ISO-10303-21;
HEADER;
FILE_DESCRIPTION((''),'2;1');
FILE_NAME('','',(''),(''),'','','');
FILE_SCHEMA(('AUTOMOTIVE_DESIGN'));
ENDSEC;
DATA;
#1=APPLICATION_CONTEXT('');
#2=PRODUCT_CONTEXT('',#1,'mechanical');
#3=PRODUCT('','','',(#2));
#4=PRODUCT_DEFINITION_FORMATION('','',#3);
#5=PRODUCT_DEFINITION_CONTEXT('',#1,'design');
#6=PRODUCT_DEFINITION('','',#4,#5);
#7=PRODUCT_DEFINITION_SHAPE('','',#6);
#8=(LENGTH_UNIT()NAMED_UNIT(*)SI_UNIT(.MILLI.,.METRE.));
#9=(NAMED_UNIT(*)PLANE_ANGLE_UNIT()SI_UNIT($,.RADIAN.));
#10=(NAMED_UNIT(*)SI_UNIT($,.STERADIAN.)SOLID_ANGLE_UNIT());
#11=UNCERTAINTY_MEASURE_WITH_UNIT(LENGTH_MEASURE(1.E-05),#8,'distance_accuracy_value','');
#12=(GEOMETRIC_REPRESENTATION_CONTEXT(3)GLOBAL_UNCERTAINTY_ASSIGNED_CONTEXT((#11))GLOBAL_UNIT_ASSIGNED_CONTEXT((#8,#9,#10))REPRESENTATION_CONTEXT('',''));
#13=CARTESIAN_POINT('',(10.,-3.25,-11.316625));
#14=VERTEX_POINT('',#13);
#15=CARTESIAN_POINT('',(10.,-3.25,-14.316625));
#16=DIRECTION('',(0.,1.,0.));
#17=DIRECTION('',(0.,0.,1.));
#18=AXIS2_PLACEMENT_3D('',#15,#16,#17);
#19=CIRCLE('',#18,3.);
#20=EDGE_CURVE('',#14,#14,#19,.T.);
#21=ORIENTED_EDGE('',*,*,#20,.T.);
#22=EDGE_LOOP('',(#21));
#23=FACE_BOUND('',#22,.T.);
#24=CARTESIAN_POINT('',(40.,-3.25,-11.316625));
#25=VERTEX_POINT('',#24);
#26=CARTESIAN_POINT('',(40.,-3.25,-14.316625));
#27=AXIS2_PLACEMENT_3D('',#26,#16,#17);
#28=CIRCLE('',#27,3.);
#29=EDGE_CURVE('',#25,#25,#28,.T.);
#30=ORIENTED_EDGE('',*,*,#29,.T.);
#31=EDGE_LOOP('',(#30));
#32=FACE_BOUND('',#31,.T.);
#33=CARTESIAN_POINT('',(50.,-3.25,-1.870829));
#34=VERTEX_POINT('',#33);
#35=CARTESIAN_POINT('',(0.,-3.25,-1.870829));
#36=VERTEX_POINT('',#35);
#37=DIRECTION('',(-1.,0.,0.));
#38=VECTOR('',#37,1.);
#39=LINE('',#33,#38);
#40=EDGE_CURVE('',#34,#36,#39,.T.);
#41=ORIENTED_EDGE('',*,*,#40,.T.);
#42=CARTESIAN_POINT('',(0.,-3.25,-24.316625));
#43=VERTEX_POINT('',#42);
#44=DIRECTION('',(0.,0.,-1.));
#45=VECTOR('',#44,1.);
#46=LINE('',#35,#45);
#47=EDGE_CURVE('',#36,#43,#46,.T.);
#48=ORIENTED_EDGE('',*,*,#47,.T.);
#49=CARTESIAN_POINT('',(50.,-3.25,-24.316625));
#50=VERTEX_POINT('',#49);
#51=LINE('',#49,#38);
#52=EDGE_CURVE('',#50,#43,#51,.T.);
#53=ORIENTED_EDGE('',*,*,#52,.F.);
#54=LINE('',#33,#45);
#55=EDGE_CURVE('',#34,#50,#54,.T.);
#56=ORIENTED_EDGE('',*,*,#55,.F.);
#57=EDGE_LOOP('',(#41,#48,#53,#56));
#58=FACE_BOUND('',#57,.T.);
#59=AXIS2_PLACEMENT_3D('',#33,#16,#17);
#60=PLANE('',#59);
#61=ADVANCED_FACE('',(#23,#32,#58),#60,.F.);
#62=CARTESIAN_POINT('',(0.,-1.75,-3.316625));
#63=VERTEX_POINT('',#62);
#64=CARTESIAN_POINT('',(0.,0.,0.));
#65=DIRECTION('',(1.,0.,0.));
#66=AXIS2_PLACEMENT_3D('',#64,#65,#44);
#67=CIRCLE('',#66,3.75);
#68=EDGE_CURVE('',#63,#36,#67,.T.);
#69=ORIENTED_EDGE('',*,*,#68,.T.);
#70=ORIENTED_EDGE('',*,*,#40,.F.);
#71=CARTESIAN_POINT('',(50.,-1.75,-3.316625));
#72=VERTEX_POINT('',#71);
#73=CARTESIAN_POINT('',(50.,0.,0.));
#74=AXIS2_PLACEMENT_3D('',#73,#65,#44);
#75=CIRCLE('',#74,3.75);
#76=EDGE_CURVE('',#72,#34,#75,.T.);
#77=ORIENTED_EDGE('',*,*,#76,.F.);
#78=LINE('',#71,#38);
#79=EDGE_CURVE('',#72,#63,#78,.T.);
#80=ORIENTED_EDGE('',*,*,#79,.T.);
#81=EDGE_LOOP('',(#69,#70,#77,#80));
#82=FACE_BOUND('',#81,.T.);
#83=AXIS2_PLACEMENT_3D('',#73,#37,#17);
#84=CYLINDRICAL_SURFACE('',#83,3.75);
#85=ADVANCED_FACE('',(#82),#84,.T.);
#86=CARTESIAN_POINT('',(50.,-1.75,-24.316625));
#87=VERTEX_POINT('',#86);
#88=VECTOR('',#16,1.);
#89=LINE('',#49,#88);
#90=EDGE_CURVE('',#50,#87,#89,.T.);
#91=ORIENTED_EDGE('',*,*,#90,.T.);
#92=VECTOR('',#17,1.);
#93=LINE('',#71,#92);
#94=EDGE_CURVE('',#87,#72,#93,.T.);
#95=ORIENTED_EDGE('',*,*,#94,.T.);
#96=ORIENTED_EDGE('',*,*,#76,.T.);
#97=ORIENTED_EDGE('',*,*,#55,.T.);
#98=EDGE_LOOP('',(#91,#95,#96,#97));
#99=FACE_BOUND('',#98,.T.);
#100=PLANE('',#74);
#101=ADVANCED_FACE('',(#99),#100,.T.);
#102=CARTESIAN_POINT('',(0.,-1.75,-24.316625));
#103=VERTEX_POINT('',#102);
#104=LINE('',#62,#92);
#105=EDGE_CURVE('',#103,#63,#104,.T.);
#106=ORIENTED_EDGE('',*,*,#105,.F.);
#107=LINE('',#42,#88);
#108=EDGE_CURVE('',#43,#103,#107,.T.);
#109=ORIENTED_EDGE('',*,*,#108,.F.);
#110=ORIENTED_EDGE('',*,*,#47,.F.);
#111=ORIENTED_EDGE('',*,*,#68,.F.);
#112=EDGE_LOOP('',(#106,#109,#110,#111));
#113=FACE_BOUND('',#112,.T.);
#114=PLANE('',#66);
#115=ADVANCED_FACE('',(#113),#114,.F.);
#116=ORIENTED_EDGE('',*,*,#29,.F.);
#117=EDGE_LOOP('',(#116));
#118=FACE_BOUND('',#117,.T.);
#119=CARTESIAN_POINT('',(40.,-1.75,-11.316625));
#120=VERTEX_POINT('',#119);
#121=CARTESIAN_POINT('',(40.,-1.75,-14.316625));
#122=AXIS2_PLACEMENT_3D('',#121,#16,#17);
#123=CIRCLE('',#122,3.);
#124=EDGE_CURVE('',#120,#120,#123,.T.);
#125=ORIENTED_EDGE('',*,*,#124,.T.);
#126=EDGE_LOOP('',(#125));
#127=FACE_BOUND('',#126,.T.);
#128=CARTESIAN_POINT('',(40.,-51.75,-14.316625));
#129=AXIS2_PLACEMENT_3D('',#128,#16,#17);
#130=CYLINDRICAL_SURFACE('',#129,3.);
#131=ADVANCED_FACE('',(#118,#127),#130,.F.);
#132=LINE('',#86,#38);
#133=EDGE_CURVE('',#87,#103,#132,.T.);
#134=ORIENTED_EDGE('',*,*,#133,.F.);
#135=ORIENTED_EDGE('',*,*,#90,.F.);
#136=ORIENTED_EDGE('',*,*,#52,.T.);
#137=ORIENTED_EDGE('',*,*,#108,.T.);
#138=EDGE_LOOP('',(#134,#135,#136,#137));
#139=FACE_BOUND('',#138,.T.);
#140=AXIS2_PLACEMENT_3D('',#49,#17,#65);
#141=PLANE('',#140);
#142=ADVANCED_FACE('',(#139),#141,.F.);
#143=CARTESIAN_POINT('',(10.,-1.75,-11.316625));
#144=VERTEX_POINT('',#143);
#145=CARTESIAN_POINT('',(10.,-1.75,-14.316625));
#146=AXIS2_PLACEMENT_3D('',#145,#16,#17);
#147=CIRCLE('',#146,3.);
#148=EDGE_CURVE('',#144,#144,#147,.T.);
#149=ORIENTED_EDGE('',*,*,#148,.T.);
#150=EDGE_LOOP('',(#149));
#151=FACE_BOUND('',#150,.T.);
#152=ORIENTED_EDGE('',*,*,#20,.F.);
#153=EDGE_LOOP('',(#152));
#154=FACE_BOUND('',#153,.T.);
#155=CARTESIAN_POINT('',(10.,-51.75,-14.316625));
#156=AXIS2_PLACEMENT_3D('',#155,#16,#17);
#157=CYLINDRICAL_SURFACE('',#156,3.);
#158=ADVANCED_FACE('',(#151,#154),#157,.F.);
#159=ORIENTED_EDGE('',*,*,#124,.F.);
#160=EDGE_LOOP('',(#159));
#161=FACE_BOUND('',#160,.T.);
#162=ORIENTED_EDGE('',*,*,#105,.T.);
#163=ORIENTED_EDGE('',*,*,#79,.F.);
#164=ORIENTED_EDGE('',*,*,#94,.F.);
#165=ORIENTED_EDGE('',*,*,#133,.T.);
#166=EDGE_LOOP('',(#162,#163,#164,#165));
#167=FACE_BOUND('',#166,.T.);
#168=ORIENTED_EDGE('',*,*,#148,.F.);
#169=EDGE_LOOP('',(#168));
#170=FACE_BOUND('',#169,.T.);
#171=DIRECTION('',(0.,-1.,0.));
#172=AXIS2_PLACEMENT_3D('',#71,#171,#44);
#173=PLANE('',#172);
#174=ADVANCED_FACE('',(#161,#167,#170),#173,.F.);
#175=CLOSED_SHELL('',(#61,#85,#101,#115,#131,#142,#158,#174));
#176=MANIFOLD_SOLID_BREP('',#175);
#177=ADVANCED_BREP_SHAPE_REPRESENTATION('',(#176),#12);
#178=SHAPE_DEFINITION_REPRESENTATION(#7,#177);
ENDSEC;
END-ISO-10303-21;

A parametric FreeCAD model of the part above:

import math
import FreeCAD as App
import Part
import Sketcher

V = App.Vector

doc = App.newDocument("Part")
body = doc.addObject("PartDesign::Body", "Body")

# Sketch on YZ plane
sketch1 = doc.addObject("Sketcher::SketchObject", "Sketch")
body.addObject(sketch1)
sketch1.AttachmentSupport = (doc.YZ_Plane, [""])
sketch1.MapMode = "FlatFace"
sketch1.addGeometry(Part.LineSegment(V(-3.2, -1.9, 0), V(-3.2, -24.3, 0)), False)
sketch1.addGeometry(Part.LineSegment(V(-3.2, -24.3, 0), V(-1.8, -24.3, 0)), False)
sketch1.addGeometry(Part.LineSegment(V(-1.8, -24.3, 0), V(-1.8, -3.3, 0)), False)
sketch1.addGeometry(Part.ArcOfCircle(Part.Circle(V(0, 0, 0), V(0, 0, 1), 3.8), math.radians(-118), math.radians(210)), False)
sketch1.addConstraint(Sketcher.Constraint("Coincident", 0, 2, 1, 1))
sketch1.addConstraint(Sketcher.Constraint("Coincident", 1, 2, 2, 1))
sketch1.addConstraint(Sketcher.Constraint("Coincident", 2, 2, 3, 1))
sketch1.addConstraint(Sketcher.Constraint("Coincident", 3, 2, 0, 1))
sketch1.addConstraint(Sketcher.Constraint("Vertical", 0))
sketch1.addConstraint(Sketcher.Constraint("Horizontal", 1))
sketch1.addConstraint(Sketcher.Constraint("Vertical", 2))
sketch1.addConstraint(Sketcher.Constraint("Coincident", 3, 3, -1, 1))
sketch1.addConstraint(Sketcher.Constraint("DistanceY", 2, 1, 2, 2, 21.0))
sketch1.addConstraint(Sketcher.Constraint("Radius", 3, 3.75))
sketch1.addConstraint(Sketcher.Constraint("DistanceX", 1, 1, 1, 2, 1.5))
sketch1.addConstraint(Sketcher.Constraint("DistanceX", 0, 2, -1, 1, 3.25))
pad1 = doc.addObject("PartDesign::Pad", "Pad")
body.addObject(pad1)
pad1.Profile = sketch1
pad1.Length = 50

# Sketch on XZ plane
sketch2 = doc.addObject("Sketcher::SketchObject", "Sketch001")
body.addObject(sketch2)
sketch2.AttachmentSupport = (doc.XZ_Plane, [""])
sketch2.MapMode = "FlatFace"
sketch2.AttachmentOffset = App.Placement(V(0, 0, 1.75), App.Rotation())
sketch2.addGeometry(Part.Circle(V(10, -14.3, 0), V(0, 0, 1), 3), False)
sketch2.addGeometry(Part.Circle(V(40, -14.3, 0), V(0, 0, 1), 3), False)
sketch2.addConstraint(Sketcher.Constraint("Equal", 0, 1))
sketch2.addConstraint(Sketcher.Constraint("Horizontal", 0, 3, 1, 3))
sketch2.addConstraint(Sketcher.Constraint("Diameter", 0, 6.0))
sketch2.addConstraint(Sketcher.Constraint("DistanceX", -1, 1, 0, 3, 10.0))
sketch2.addConstraint(Sketcher.Constraint("DistanceX", -1, 1, 1, 3, 40.0))
sketch2.addConstraint(Sketcher.Constraint("DistanceY", 0, 3, -1, 1, 14.316625))
pocket1 = doc.addObject("PartDesign::Pocket", "Pocket")
body.addObject(pocket1)
pocket1.Profile = sketch2
pocket1.Length = 50
pocket1.Reversed = True

doc.recompute()
